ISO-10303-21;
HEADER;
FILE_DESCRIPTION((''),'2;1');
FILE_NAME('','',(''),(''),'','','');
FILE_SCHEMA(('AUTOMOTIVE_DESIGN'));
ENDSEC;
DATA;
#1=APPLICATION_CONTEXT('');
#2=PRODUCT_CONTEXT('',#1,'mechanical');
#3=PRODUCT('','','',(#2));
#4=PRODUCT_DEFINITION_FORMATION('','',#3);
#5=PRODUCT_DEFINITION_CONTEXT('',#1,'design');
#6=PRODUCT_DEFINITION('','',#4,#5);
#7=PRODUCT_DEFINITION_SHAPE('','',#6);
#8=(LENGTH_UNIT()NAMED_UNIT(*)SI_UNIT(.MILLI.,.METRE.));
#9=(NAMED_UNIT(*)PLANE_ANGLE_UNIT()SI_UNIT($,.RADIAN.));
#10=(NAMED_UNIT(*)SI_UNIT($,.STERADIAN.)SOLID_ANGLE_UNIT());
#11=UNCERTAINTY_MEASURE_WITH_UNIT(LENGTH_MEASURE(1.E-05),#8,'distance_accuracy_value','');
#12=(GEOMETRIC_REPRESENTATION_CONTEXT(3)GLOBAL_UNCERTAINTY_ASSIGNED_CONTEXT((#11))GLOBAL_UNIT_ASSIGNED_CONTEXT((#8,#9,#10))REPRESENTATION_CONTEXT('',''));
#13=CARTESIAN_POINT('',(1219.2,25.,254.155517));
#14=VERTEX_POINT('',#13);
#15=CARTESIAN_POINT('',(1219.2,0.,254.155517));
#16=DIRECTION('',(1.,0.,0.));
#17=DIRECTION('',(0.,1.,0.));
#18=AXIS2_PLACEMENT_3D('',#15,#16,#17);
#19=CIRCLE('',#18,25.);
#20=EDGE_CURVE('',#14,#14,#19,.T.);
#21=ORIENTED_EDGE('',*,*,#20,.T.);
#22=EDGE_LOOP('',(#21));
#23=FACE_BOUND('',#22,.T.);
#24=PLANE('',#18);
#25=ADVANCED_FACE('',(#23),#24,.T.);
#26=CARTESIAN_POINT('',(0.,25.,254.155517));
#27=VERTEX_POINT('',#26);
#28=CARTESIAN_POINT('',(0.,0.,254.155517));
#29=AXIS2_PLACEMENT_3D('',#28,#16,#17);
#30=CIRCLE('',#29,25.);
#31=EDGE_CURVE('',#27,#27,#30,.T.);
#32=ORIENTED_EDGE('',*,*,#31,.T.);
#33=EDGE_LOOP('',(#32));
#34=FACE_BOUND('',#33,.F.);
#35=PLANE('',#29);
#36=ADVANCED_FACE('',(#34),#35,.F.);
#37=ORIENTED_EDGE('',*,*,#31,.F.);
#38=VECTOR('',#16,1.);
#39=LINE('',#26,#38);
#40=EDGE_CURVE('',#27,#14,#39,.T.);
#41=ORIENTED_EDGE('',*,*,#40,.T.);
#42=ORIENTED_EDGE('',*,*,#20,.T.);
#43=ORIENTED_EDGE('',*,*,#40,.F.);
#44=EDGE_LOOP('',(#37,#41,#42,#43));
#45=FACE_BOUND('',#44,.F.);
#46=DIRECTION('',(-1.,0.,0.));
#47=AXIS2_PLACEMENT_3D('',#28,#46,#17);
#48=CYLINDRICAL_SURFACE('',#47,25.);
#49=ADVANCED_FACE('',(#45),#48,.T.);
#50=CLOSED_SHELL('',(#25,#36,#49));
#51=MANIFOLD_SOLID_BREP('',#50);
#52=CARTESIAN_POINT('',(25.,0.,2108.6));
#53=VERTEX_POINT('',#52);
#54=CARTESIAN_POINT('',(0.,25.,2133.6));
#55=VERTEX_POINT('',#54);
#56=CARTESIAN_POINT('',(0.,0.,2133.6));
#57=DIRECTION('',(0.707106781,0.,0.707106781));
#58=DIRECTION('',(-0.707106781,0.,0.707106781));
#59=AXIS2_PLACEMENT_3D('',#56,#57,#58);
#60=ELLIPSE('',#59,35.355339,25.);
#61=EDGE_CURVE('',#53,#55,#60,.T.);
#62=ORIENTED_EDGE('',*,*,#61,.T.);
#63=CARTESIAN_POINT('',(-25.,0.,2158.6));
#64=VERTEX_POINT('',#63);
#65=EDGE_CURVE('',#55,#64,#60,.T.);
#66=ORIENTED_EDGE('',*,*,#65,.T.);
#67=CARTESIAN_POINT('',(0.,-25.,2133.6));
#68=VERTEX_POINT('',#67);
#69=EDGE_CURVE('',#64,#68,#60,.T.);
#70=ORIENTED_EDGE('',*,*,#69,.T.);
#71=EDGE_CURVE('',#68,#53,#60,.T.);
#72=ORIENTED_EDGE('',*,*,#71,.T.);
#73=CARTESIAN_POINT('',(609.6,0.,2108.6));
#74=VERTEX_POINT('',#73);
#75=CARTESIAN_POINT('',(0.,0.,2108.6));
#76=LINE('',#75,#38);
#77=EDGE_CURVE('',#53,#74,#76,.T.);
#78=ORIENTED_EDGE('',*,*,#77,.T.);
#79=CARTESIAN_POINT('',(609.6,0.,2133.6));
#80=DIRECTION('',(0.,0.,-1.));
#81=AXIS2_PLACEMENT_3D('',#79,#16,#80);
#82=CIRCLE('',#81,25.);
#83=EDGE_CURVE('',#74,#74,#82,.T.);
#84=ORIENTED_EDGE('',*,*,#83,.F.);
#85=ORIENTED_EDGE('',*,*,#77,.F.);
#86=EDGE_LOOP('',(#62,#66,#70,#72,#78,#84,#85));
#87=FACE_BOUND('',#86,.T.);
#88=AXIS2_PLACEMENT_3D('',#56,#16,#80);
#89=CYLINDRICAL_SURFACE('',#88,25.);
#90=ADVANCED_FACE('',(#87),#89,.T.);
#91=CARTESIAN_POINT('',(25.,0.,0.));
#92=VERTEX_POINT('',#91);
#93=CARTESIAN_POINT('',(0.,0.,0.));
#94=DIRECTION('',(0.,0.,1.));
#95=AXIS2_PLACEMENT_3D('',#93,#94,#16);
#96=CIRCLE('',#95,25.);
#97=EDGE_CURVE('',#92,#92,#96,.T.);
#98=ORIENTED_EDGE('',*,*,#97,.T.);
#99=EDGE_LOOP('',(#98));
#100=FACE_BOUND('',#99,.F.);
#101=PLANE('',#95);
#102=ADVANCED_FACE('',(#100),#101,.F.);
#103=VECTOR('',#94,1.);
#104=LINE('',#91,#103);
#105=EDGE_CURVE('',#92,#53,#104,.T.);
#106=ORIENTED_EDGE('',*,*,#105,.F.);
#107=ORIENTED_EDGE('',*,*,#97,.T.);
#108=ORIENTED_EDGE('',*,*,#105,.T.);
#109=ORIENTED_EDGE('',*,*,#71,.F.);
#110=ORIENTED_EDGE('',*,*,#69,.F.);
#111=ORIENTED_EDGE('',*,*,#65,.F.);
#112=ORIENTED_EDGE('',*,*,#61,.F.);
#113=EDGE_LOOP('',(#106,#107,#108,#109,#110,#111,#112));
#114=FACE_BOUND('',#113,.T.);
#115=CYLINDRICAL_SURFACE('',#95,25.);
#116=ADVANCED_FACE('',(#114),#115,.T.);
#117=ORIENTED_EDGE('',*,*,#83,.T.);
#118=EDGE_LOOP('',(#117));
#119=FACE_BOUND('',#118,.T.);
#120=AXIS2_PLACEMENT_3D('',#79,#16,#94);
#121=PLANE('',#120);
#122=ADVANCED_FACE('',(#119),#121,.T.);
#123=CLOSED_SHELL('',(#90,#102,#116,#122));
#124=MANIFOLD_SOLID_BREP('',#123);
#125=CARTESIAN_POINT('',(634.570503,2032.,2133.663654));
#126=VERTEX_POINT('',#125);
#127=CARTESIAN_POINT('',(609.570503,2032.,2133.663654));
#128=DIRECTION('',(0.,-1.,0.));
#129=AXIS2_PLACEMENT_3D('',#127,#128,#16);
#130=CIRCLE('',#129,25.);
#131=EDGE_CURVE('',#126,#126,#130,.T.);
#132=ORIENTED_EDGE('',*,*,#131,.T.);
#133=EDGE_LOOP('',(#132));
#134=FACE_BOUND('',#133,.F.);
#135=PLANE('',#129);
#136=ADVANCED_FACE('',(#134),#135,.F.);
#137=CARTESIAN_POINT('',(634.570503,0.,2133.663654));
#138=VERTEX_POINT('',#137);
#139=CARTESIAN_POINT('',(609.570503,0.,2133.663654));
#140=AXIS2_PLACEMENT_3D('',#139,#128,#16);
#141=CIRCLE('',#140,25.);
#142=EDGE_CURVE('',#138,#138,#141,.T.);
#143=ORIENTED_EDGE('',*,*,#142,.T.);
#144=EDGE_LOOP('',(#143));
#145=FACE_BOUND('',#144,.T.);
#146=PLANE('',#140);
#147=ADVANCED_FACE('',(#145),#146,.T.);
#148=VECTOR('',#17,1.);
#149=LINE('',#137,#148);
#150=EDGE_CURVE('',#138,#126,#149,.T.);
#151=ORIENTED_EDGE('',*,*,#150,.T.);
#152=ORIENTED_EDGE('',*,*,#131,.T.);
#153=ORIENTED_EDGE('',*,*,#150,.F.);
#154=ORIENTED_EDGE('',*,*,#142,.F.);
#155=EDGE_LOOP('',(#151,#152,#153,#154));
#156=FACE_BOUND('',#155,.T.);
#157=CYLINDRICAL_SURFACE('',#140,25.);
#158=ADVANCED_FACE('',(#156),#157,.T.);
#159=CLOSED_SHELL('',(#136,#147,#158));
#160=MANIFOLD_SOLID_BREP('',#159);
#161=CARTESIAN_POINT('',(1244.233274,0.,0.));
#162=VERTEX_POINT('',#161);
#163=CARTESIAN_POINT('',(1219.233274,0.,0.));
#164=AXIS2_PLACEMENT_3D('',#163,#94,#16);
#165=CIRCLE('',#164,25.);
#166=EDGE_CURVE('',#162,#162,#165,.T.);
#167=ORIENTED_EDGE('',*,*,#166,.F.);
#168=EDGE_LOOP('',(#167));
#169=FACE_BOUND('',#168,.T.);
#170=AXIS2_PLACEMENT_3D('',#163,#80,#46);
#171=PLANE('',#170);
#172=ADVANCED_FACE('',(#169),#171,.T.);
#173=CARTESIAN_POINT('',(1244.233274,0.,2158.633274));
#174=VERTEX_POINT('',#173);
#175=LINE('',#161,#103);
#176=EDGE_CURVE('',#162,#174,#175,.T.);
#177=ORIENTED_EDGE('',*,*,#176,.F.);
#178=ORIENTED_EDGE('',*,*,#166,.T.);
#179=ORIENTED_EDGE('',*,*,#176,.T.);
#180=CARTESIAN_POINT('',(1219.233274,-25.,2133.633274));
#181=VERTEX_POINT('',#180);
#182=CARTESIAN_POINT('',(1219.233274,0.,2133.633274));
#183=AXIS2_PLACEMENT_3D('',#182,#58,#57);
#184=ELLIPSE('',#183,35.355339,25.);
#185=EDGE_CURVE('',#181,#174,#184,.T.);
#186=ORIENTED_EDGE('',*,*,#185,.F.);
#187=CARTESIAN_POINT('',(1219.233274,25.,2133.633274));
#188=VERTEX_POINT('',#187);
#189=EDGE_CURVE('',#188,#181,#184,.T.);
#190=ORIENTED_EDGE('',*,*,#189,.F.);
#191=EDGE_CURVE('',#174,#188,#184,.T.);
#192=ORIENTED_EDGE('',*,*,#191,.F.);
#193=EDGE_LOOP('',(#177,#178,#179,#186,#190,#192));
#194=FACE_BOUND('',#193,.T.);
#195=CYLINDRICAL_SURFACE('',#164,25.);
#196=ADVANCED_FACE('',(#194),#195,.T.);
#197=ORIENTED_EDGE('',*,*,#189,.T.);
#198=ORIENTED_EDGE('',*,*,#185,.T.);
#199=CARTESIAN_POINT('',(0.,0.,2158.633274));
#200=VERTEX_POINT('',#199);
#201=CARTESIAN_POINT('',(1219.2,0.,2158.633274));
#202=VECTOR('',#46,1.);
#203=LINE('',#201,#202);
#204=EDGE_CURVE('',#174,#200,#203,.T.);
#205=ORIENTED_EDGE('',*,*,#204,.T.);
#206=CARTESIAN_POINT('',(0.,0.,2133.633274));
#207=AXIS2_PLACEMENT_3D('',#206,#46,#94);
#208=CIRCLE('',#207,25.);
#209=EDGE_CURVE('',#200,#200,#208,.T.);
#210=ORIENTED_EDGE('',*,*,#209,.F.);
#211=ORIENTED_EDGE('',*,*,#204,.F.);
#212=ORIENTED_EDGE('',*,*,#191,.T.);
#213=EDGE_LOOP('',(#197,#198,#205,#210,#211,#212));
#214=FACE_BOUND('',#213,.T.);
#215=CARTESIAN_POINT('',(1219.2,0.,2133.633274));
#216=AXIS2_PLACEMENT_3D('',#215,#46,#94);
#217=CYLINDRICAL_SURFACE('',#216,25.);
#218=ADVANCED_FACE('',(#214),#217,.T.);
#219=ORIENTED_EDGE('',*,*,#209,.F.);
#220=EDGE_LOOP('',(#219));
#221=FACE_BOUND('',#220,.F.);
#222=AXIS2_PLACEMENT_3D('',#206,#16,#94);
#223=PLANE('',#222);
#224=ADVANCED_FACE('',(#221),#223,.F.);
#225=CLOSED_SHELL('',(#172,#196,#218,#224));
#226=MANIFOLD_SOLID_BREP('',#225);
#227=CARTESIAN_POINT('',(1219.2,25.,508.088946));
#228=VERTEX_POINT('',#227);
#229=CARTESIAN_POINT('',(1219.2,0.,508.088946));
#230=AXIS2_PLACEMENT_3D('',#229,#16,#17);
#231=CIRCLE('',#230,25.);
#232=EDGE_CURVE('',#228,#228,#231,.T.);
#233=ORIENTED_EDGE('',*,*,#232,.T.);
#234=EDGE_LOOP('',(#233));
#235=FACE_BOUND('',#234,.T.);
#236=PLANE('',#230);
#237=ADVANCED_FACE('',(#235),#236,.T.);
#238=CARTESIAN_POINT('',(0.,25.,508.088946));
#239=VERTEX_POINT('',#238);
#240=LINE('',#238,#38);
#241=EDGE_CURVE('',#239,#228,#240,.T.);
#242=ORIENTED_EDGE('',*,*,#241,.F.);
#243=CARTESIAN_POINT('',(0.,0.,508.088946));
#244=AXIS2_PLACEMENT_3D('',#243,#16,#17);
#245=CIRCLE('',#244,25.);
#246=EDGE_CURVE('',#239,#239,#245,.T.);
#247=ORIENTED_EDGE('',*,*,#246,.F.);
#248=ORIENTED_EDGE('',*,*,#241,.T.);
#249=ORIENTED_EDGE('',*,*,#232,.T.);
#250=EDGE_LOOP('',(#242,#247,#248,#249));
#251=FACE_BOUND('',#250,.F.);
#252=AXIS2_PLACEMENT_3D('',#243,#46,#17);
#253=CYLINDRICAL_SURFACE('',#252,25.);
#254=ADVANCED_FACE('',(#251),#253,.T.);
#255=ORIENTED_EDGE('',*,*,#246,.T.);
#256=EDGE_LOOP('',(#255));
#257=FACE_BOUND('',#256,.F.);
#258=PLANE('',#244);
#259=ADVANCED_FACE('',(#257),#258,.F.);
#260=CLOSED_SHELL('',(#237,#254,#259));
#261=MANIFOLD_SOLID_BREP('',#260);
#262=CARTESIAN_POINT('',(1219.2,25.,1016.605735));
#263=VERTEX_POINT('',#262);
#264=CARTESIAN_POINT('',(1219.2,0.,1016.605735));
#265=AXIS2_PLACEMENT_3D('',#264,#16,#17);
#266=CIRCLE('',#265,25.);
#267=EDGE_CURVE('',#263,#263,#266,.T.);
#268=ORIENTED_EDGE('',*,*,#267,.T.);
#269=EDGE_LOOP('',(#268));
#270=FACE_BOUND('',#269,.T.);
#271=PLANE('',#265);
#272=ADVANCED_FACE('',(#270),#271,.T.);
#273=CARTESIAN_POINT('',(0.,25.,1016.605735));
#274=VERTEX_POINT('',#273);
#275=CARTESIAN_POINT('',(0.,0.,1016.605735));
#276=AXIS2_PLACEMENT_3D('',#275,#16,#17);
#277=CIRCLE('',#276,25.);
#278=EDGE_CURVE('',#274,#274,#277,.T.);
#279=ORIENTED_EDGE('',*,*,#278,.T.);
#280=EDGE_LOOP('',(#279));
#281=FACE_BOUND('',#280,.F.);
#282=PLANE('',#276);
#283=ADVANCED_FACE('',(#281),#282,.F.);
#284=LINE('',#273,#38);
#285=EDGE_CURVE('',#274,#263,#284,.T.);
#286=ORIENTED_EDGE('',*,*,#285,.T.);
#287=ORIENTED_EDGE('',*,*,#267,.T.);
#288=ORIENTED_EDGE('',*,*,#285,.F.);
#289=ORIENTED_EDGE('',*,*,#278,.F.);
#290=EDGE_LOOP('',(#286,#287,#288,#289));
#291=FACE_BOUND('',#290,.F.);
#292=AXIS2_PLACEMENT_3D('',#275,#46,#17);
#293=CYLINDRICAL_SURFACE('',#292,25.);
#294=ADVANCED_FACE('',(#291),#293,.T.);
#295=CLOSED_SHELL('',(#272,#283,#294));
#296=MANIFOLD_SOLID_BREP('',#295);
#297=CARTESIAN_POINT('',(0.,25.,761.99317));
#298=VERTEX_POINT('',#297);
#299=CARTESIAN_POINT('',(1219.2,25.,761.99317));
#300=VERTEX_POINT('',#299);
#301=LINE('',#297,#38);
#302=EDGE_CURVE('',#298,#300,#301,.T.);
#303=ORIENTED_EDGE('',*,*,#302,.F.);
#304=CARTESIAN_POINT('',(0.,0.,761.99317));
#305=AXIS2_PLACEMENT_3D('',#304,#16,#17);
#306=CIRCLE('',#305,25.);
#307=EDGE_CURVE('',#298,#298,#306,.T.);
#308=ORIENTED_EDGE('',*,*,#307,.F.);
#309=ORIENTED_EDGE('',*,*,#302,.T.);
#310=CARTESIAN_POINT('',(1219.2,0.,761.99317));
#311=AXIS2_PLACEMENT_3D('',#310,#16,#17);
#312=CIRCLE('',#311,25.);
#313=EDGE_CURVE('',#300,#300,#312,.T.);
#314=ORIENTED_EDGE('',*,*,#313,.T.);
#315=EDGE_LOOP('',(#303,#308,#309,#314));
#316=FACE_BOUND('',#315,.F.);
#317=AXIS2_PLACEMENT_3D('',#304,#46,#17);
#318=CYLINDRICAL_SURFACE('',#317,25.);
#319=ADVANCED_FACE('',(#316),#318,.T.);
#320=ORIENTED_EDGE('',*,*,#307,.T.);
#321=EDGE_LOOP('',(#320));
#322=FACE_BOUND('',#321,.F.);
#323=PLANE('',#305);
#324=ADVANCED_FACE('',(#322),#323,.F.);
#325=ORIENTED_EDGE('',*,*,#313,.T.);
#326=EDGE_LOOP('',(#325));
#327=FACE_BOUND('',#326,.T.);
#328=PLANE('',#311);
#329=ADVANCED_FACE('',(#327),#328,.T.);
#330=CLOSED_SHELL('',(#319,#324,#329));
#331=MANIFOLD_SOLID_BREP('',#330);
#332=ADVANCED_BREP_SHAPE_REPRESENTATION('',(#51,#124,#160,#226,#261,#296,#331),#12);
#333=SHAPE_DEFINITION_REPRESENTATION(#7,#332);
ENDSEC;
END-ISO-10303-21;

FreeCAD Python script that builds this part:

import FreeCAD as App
import Part
import Sketcher

V = App.Vector
Q = App.Units.Quantity

doc = App.newDocument("Part")
body = doc.addObject("PartDesign::Body", "Body")

# Sketch on XZ plane
sketch1 = body.newObject("Sketcher::SketchObject", "Sketch")
sketch1.AttachmentSupport = (doc.getObject("XZ_Plane"), [""])
sketch1.MapMode = "FlatFace"
sketch1.addGeometry(Part.Circle(V(609.570503, 2133.663654, 0), V(0, 0, 1), 25), False)
sketch1.addConstraint(Sketcher.Constraint("Diameter", 0, Q("50 mm")))
sketch1.addConstraint(Sketcher.Constraint("DistanceX", -1, 1, 0, 3, Q("609.570503 mm")))
sketch1.addConstraint(Sketcher.Constraint("DistanceY", -1, 1, 0, 3, Q("2133.663654 mm")))
pad1 = body.newObject("PartDesign::Pad", "Pad")
pad1.Profile = sketch1
pad1.Length = Q("80 in")
pad1.Reversed = True
body2 = doc.addObject("PartDesign::Body", "Body001")

# Sketch on XY plane
sketch2 = body2.newObject("Sketcher::SketchObject", "Sketch001")
sketch2.AttachmentSupport = (doc.getObject("XY_Plane001"), [""])
sketch2.MapMode = "FlatFace"
sketch2.addGeometry(Part.Circle(V(0, 0, 0), V(0, 0, 1), 25), False)
sketch2.addConstraint(Sketcher.Constraint("Coincident", 0, 3, -1, 1))
sketch2.addConstraint(Sketcher.Constraint("Diameter", 0, Q("50 mm")))

# Sketch on XZ plane
sketch3 = body2.newObject("Sketcher::SketchObject", "Sketch002")
sketch3.AttachmentSupport = (doc.getObject("XZ_Plane001"), [""])
sketch3.MapMode = "FlatFace"
sketch3.addGeometry(Part.LineSegment(V(0, 0, 0), V(0, 2133.6, 0)), False)
sketch3.addGeometry(Part.LineSegment(V(0, 2133.6, 0), V(609.6, 2133.6, 0)), False)
sketch3.addConstraint(Sketcher.Constraint("Coincident", 0, 2, 1, 1))
sketch3.addConstraint(Sketcher.Constraint("Vertical", 0))
sketch3.addConstraint(Sketcher.Constraint("Horizontal", 1))
sketch3.addConstraint(Sketcher.Constraint("Coincident", 0, 1, -1, 1))
sketch3.addConstraint(Sketcher.Constraint("DistanceX", 1, 1, 1, 2, Q("24 in")))
sketch3.addConstraint(Sketcher.Constraint("DistanceY", 0, 1, 0, 2, Q("84 in")))
doc.recompute()

additivepipe = body2.newObject("PartDesign::AdditivePipe", "AdditivePipe")
additivepipe.Profile = sketch2
additivepipe.Spine = (sketch3, ["Edge1", "Edge2"])
additivepipe.Transition = "Right corner"
body3 = doc.addObject("PartDesign::Body", "Body002")

# Sketch on XY plane
sketch4 = body3.newObject("Sketcher::SketchObject", "Sketch003")
sketch4.AttachmentSupport = (doc.getObject("XY_Plane002"), [""])
sketch4.MapMode = "FlatFace"
sketch4.addGeometry(Part.Circle(V(1219.233274, 0, 0), V(0, 0, 1), 25), False)
sketch4.addConstraint(Sketcher.Constraint("PointOnObject", 0, 3, -1))
sketch4.addConstraint(Sketcher.Constraint("Diameter", 0, Q("50 mm")))
sketch4.addConstraint(Sketcher.Constraint("DistanceX", -1, 1, 0, 3, Q("1219.233274 mm")))

# Sketch on XZ plane
sketch5 = body3.newObject("Sketcher::SketchObject", "Sketch004")
sketch5.AttachmentSupport = (doc.getObject("XZ_Plane002"), [""])
sketch5.MapMode = "FlatFace"
sketch5.addGeometry(Part.LineSegment(V(1219.2, 0, 0), V(1219.2, 2133.6, 0)), False)
sketch5.addGeometry(Part.LineSegment(V(1219.2, 2133.6, 0), V(0, 2133.6, 0)), False)
sketch5.addConstraint(Sketcher.Constraint("Coincident", 0, 2, 1, 1))
sketch5.addConstraint(Sketcher.Constraint("Vertical", 0))
sketch5.addConstraint(Sketcher.Constraint("Horizontal", 1))
sketch5.addConstraint(Sketcher.Constraint("PointOnObject", 0, 1, -1))
sketch5.addConstraint(Sketcher.Constraint("PointOnObject", 1, 2, -2))
sketch5.addConstraint(Sketcher.Constraint("DistanceX", 1, 2, 1, 1, Q("48 in")))
sketch5.addConstraint(Sketcher.Constraint("DistanceY", 0, 1, 0, 2, Q("84 in")))
doc.recompute()

additivepipe2 = body3.newObject("PartDesign::AdditivePipe", "AdditivePipe001")
additivepipe2.Profile = sketch4
additivepipe2.Spine = (sketch5, ["Edge1", "Edge2"])
additivepipe2.Transition = "Right corner"
body4 = doc.addObject("PartDesign::Body", "Body003")

# Sketch on YZ plane
sketch6 = body4.newObject("Sketcher::SketchObject", "Sketch005")
sketch6.AttachmentSupport = (doc.getObject("YZ_Plane003"), [""])
sketch6.MapMode = "FlatFace"
sketch6.addGeometry(Part.Circle(V(0, 1016.605735, 0), V(0, 0, 1), 25), False)
sketch6.addConstraint(Sketcher.Constraint("PointOnObject", 0, 3, -2))
sketch6.addConstraint(Sketcher.Constraint("Diameter", 0, Q("50 mm")))
sketch6.addConstraint(Sketcher.Constraint("DistanceY", -1, 1, 0, 3, Q("1016.605735 mm")))
pad2 = body4.newObject("PartDesign::Pad", "Pad001")
pad2.Profile = sketch6
pad2.Length = Q("48 in")
body5 = doc.addObject("PartDesign::Body", "Body004")

# Sketch on YZ plane
sketch7 = body5.newObject("Sketcher::SketchObject", "Sketch006")
sketch7.AttachmentSupport = (doc.getObject("YZ_Plane004"), [""])
sketch7.MapMode = "FlatFace"
sketch7.addGeometry(Part.Circle(V(0, 761.99317, 0), V(0, 0, 1), 25), False)
sketch7.addConstraint(Sketcher.Constraint("PointOnObject", 0, 3, -2))
sketch7.addConstraint(Sketcher.Constraint("Diameter", 0, Q("50 mm")))
sketch7.addConstraint(Sketcher.Constraint("DistanceY", -1, 1, 0, 3, Q("761.99317 mm")))
pad3 = body5.newObject("PartDesign::Pad", "Pad002")
pad3.Profile = sketch7
pad3.Length = Q("48 in")
body6 = doc.addObject("PartDesign::Body", "Body005")

# Sketch on YZ plane
sketch8 = body6.newObject("Sketcher::SketchObject", "Sketch007")
sketch8.AttachmentSupport = (doc.getObject("YZ_Plane005"), [""])
sketch8.MapMode = "FlatFace"
sketch8.addGeometry(Part.Circle(V(0, 508.088946, 0), V(0, 0, 1), 25), False)
sketch8.addConstraint(Sketcher.Constraint("PointOnObject", 0, 3, -2))
sketch8.addConstraint(Sketcher.Constraint("Diameter", 0, Q("50 mm")))
sketch8.addConstraint(Sketcher.Constraint("DistanceY", -1, 1, 0, 3, Q("508.088946 mm")))
pad4 = body6.newObject("PartDesign::Pad", "Pad003")
pad4.Profile = sketch8
pad4.Length = Q("48 in")
body7 = doc.addObject("PartDesign::Body", "Body006")

# Sketch on YZ plane
sketch9 = body7.newObject("Sketcher::SketchObject", "Sketch008")
sketch9.AttachmentSupport = (doc.getObject("YZ_Plane006"), [""])
sketch9.MapMode = "FlatFace"
sketch9.addGeometry(Part.Circle(V(0, 254.155517, 0), V(0, 0, 1), 25), False)
sketch9.addConstraint(Sketcher.Constraint("PointOnObject", 0, 3, -2))
sketch9.addConstraint(Sketcher.Constraint("Diameter", 0, Q("50 mm")))
sketch9.addConstraint(Sketcher.Constraint("DistanceY", -1, 1, 0, 3, Q("254.155517 mm")))
pad5 = body7.newObject("PartDesign::Pad", "Pad004")
pad5.Profile = sketch9
pad5.Length = Q("48 in")

doc.recompute()
